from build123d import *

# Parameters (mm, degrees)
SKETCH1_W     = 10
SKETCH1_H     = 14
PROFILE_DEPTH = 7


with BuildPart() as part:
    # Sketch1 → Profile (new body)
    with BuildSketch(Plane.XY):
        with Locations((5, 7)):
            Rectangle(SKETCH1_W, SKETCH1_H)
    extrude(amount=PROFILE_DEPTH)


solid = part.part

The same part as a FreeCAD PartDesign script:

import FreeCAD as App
import Part
import Sketcher
Q = App.Units.Quantity


def add_polygon(sketch, points):
    """Adds a closed chain of lines whose ends are joined by coincident constraints."""
    first, n = sketch.GeometryCount, len(points)
    for a, b in zip(points, points[1:] + points[:1]):
        sketch.addGeometry(Part.LineSegment(App.Vector(*a, 0), App.Vector(*b, 0)), False)
    for i in range(n):
        sketch.addConstraint(Sketcher.Constraint("Coincident", first + i, 2, first + (i + 1) % n, 1))

doc = App.newDocument("Part")
body = doc.addObject("PartDesign::Body", "Body")

# Sketch on XY plane
sketch1 = body.newObject("Sketcher::SketchObject", "Sketch")
sketch1.AttachmentSupport = (doc.getObject("XY_Plane"), [""])
sketch1.MapMode = "FlatFace"
add_polygon(sketch1, [(0, 14), (0, 0), (10, 0), (10, 14)])  # lines 0-3
sketch1.addConstraint([
    Sketcher.Constraint("Vertical", 0),
    Sketcher.Constraint("Horizontal", 1),
    Sketcher.Constraint("Vertical", 2),
    Sketcher.Constraint("Horizontal", 3),
    Sketcher.Constraint("Coincident", 0, 2, -1, 1),
    Sketcher.Constraint("DistanceX", 1, 1, 1, 2, Q("10 mm")),
    Sketcher.Constraint("DistanceY", 0, 2, 0, 1, Q("14 mm")),
])
pad1 = body.newObject("PartDesign::Pad", "Pad")
pad1.Profile = sketch1
pad1.Length = 7

doc.recompute()
